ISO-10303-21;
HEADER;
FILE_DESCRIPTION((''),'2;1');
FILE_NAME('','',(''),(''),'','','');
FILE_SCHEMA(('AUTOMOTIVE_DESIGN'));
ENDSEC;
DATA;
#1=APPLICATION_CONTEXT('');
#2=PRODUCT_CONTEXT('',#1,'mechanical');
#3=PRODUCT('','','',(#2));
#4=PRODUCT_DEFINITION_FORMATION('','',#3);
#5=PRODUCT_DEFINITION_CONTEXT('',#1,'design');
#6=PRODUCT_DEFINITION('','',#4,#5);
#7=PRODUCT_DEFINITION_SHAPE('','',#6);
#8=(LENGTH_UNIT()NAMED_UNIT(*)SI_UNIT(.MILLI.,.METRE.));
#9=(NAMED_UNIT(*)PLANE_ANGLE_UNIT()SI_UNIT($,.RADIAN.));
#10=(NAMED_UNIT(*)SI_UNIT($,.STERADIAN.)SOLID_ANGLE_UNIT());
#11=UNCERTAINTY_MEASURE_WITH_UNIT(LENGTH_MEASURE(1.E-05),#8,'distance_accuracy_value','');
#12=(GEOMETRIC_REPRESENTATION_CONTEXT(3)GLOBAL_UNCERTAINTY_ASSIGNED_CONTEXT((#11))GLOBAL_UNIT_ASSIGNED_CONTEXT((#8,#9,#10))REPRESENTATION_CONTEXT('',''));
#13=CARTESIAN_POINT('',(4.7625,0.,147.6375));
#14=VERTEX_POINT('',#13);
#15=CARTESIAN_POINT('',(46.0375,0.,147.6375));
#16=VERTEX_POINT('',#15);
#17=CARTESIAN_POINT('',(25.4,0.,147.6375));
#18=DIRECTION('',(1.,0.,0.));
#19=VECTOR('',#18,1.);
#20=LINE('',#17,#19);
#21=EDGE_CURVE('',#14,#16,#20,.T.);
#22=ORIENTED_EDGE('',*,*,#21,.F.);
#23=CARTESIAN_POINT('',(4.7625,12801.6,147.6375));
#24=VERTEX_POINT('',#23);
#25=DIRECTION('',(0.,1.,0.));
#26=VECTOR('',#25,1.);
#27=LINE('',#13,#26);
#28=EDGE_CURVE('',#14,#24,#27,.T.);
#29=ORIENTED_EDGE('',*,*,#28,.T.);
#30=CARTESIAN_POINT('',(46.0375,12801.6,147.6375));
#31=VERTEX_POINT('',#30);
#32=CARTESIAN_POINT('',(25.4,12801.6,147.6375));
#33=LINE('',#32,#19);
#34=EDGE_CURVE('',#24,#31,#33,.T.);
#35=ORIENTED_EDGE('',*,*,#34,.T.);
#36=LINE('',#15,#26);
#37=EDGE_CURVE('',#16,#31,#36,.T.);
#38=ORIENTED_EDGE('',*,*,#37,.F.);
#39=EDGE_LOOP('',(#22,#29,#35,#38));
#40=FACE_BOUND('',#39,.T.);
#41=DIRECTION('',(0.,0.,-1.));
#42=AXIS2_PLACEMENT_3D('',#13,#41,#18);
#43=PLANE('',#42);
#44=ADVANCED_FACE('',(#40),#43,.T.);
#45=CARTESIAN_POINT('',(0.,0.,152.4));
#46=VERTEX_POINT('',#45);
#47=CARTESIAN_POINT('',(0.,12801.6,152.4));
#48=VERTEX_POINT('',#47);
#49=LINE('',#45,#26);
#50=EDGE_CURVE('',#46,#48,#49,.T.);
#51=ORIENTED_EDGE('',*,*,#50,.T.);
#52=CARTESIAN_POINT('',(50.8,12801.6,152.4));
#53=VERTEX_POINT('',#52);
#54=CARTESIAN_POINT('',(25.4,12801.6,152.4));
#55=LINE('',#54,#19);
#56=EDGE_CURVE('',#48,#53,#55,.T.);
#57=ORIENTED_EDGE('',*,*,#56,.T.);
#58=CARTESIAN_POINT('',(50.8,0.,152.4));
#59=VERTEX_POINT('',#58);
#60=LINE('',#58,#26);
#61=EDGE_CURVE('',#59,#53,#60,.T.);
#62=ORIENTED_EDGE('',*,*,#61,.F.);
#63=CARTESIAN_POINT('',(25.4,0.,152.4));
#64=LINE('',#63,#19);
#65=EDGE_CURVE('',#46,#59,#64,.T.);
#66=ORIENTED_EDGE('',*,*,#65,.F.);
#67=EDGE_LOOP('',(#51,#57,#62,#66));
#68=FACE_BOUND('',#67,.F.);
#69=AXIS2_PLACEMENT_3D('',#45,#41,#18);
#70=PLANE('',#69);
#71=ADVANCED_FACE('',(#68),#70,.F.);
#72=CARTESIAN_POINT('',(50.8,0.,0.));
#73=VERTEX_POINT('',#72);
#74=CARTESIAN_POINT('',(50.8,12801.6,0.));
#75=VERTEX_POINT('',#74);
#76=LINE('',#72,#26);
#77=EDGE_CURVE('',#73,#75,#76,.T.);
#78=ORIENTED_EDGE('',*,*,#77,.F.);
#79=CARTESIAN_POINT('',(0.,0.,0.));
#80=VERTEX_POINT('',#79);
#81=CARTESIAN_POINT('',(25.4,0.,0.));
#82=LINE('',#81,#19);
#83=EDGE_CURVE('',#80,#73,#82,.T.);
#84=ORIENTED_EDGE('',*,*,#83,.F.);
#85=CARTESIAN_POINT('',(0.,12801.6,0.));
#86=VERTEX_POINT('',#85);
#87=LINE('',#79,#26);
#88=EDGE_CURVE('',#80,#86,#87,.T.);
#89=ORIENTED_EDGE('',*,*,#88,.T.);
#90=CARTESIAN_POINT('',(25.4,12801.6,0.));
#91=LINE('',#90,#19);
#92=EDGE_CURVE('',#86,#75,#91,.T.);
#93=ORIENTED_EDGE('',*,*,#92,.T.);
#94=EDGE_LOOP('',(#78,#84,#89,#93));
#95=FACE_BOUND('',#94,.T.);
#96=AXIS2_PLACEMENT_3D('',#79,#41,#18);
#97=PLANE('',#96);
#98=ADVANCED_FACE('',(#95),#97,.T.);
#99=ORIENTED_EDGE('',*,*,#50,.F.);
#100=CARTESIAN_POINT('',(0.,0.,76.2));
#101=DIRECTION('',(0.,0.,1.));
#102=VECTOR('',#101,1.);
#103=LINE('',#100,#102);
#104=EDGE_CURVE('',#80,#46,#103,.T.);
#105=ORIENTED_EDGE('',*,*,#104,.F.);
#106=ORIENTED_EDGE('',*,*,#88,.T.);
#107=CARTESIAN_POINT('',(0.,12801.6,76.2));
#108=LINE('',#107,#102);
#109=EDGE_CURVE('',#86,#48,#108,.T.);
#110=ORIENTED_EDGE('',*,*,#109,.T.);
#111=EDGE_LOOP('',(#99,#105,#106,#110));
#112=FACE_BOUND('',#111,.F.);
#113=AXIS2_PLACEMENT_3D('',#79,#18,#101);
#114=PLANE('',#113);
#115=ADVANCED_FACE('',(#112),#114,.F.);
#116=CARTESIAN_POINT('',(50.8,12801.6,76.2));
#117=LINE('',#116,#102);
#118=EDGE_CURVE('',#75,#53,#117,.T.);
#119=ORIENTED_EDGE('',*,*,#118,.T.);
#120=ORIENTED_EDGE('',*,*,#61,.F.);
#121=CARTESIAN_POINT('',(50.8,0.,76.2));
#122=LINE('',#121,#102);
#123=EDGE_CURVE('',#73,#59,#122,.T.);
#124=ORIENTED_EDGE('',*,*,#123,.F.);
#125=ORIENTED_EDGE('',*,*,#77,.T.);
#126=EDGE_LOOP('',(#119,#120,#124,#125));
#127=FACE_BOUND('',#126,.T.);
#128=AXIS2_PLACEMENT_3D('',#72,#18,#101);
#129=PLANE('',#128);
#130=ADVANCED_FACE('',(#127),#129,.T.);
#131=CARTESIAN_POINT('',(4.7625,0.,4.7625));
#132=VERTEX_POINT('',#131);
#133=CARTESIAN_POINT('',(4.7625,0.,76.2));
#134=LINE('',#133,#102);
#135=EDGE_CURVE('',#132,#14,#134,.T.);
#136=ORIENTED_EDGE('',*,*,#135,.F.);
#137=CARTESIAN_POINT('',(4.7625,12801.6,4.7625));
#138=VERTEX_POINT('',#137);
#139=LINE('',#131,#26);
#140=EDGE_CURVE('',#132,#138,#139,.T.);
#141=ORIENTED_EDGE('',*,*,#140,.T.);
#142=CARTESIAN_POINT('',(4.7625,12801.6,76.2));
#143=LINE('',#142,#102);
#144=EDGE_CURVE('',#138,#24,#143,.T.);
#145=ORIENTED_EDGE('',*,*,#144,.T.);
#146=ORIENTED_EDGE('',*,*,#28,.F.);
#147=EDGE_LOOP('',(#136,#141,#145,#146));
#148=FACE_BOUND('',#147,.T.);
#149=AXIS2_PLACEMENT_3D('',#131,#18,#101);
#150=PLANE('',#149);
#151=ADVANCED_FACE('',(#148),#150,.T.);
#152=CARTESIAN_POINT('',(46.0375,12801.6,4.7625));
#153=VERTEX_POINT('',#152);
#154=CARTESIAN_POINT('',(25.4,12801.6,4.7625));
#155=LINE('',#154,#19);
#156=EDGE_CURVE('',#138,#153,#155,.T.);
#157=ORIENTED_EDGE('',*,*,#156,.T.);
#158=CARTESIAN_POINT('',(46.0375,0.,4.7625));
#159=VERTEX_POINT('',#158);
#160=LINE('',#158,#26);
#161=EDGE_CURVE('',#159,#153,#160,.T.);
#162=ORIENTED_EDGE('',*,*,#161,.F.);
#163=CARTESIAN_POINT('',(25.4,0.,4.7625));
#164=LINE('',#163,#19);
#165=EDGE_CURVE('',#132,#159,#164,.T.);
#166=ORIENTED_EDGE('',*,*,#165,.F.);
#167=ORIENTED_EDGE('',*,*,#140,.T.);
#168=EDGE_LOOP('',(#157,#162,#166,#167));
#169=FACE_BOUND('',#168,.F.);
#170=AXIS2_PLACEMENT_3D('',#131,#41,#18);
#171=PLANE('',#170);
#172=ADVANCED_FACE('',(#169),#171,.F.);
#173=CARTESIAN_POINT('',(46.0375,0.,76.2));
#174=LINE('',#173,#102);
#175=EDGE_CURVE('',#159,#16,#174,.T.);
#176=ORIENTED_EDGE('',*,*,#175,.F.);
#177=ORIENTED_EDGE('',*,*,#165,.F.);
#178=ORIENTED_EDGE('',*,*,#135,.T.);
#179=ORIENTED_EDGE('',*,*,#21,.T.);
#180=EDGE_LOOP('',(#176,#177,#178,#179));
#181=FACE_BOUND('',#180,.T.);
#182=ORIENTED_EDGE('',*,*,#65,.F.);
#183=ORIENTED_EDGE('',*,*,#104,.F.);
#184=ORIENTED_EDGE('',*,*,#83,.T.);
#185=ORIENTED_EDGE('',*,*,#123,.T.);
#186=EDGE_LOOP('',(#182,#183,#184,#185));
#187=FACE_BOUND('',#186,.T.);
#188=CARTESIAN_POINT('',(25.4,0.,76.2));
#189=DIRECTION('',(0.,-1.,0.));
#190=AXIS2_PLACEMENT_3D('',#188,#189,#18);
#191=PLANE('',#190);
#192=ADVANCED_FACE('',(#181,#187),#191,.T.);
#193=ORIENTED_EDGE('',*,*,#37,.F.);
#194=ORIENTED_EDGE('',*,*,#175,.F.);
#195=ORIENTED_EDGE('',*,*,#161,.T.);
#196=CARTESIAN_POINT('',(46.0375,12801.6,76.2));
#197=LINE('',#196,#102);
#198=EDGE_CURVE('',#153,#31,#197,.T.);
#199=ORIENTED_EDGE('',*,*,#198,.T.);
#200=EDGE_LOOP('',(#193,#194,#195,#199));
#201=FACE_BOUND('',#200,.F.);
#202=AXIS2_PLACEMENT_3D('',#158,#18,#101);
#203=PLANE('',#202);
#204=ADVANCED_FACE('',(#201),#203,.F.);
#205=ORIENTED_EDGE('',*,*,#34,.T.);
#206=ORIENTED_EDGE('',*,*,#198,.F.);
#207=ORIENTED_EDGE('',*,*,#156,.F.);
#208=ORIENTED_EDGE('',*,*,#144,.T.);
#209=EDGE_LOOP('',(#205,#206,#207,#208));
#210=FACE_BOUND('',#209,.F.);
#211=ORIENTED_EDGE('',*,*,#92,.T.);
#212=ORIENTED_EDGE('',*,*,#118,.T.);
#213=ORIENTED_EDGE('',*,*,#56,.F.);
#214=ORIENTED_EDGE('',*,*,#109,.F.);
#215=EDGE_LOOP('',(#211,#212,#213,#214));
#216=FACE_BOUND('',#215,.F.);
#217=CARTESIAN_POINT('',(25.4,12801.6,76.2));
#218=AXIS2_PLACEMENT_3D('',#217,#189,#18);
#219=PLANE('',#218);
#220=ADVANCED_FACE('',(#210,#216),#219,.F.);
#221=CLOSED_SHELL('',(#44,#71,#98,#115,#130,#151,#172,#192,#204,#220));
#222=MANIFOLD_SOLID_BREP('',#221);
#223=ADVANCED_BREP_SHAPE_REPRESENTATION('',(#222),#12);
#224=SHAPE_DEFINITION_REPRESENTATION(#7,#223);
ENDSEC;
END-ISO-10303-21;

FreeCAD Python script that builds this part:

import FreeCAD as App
import Part
import Sketcher
Q = App.Units.Quantity


def add_polygon(sketch, points):
    """Adds a closed chain of lines whose ends are joined by coincident constraints."""
    first, n = sketch.GeometryCount, len(points)
    for a, b in zip(points, points[1:] + points[:1]):
        sketch.addGeometry(Part.LineSegment(App.Vector(*a, 0), App.Vector(*b, 0)), False)
    for i in range(n):
        sketch.addConstraint(Sketcher.Constraint("Coincident", first + i, 2, first + (i + 1) % n, 1))

doc = App.newDocument("Part")
body = doc.addObject("PartDesign::Body", "Body")

# Sketch on XZ plane
sketch1 = body.newObject("Sketcher::SketchObject", "Sketch")
sketch1.AttachmentSupport = (doc.getObject("XZ_Plane"), [""])
sketch1.MapMode = "FlatFace"
add_polygon(sketch1, [(0, 152), (0, 0), (51, 0), (51, 152)])  # lines 0-3
add_polygon(sketch1, [(46, 5), (5, 5), (5, 148), (46, 148)])  # lines 4-7
sketch1.addConstraint(Sketcher.Constraint("Vertical", 0))
sketch1.addConstraint(Sketcher.Constraint("Horizontal", 1))
sketch1.addConstraint(Sketcher.Constraint("Vertical", 2))
sketch1.addConstraint(Sketcher.Constraint("Horizontal", 3))
sketch1.addConstraint(Sketcher.Constraint("Horizontal", 4))
sketch1.addConstraint(Sketcher.Constraint("Vertical", 5))
sketch1.addConstraint(Sketcher.Constraint("Horizontal", 6))
sketch1.addConstraint(Sketcher.Constraint("Vertical", 7))
sketch1.addConstraint(Sketcher.Constraint("Coincident", 0, 2, -1, 1))
sketch1.addConstraint(Sketcher.Constraint("DistanceX", 1, 1, 1, 2, Q("2 in")))
sketch1.addConstraint(Sketcher.Constraint("DistanceY", 0, 2, 0, 1, Q("6 in")))
sketch1.addConstraint(Sketcher.Constraint("DistanceX", 4, 2, 4, 1, Q("1.625 in")))
sketch1.addConstraint(Sketcher.Constraint("DistanceY", 5, 1, 5, 2, Q("5.625 in")))
sketch1.addConstraint(Sketcher.Constraint("DistanceX", -1, 1, 4, 2, Q("0.1875 in")))
sketch1.addConstraint(Sketcher.Constraint("DistanceY", -1, 1, 4, 2, Q("0.1875 in")))
pad1 = body.newObject("PartDesign::Pad", "Pad")
pad1.Profile = sketch1
pad1.Length = Q("504 in")
pad1.Reversed = True

doc.recompute()
